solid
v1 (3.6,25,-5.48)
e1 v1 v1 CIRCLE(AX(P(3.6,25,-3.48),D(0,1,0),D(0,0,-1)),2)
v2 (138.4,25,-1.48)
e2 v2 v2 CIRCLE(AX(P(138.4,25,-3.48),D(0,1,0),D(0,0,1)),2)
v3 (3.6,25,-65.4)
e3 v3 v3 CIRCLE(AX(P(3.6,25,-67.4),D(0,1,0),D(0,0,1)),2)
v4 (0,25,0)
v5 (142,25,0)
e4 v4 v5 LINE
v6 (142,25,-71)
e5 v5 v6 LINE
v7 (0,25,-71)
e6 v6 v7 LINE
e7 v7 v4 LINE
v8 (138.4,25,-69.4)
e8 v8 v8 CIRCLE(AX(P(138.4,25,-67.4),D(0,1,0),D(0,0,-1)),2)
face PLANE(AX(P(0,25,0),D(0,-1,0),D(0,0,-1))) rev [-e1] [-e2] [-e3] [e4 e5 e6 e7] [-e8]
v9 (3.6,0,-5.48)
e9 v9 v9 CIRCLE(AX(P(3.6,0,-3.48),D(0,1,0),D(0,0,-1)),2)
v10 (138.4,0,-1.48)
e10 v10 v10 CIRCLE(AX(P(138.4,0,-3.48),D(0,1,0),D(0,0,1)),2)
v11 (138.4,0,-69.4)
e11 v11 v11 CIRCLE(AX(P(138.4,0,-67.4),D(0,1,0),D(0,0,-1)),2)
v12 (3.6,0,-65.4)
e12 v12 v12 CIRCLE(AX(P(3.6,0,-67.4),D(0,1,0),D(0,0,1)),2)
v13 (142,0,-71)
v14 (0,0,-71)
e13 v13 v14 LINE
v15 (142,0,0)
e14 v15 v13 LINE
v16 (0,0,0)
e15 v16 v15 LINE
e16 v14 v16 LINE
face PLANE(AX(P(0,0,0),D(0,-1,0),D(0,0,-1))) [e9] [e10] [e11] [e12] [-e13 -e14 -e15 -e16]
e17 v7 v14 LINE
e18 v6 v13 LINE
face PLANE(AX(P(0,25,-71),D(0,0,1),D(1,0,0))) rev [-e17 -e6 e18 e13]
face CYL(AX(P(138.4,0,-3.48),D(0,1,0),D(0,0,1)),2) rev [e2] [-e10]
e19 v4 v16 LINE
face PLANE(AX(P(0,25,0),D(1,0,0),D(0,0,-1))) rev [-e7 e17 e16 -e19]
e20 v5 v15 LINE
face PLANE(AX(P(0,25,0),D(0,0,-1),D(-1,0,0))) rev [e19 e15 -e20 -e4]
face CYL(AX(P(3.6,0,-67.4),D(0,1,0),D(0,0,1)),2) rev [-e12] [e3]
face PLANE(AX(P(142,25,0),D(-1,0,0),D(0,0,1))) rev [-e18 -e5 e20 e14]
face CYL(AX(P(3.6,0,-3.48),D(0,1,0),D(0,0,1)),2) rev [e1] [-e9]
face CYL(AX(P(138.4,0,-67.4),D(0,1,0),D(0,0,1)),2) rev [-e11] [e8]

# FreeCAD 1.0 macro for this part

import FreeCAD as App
import Part
import Sketcher


def add_polygon(sketch, points):
    """Adds a closed chain of lines whose ends are joined by coincident constraints."""
    first, n = sketch.GeometryCount, len(points)
    for a, b in zip(points, points[1:] + points[:1]):
        sketch.addGeometry(Part.LineSegment(App.Vector(*a, 0), App.Vector(*b, 0)), False)
    for i in range(n):
        sketch.addConstraint(Sketcher.Constraint("Coincident", first + i, 2, first + (i + 1) % n, 1))

doc = App.newDocument("Part")
body = doc.addObject("PartDesign::Body", "Body")

# Sketch on XZ plane
sketch1 = doc.addObject("Sketcher::SketchObject", "Sketch")
body.addObject(sketch1)
sketch1.AttachmentSupport = (doc.XZ_Plane, [""])
sketch1.MapMode = "FlatFace"
add_polygon(sketch1, [(0, -71), (0, 0), (142, 0), (142, -71)])  # lines 0-3
sketch1.addConstraint([
    Sketcher.Constraint("Vertical", 0),
    Sketcher.Constraint("Horizontal", 1),
    Sketcher.Constraint("Vertical", 2),
    Sketcher.Constraint("Horizontal", 3),
    Sketcher.Constraint("Coincident", 0, 2, -1, 1),
    Sketcher.Constraint("DistanceX", 1, 1, 1, 2, 142.0),
    Sketcher.Constraint("DistanceY", 0, 1, 0, 2, 71.0),
])
pad1 = doc.addObject("PartDesign::Pad", "Pad")
body.addObject(pad1)
pad1.Profile = sketch1
pad1.Length = 25
pad1.Reversed = True

# Sketch on XZ plane
sketch2 = doc.addObject("Sketcher::SketchObject", "Sketch001")
body.addObject(sketch2)
sketch2.AttachmentSupport = (doc.XZ_Plane, [""])
sketch2.MapMode = "FlatFace"
sketch2.AttachmentOffset = App.Placement(App.Vector(0, 0, -25), App.Rotation())
sketch2.addGeometry([
    Part.Circle(App.Vector(3.6, -67.4, 0), App.Vector(0, 0, 1), 2),
    Part.Circle(App.Vector(138.4, -67.4, 0), App.Vector(0, 0, 1), 2),
    Part.Circle(App.Vector(138.4, -3.5, 0), App.Vector(0, 0, 1), 2),
    Part.Circle(App.Vector(3.6, -3.5, 0), App.Vector(0, 0, 1), 2),
], False)
sketch2.addConstraint([
    Sketcher.Constraint("Equal", 0, 1),
    Sketcher.Constraint("Equal", 1, 2),
    Sketcher.Constraint("Equal", 2, 3),
    Sketcher.Constraint("Horizontal", 0, 3, 1, 3),
    Sketcher.Constraint("Horizontal", 2, 3, 3, 3),
    Sketcher.Constraint("Vertical", 1, 3, 2, 3),
    Sketcher.Constraint("Vertical", 0, 3, 3, 3),
    Sketcher.Constraint("Diameter", 0, 4.0),
    Sketcher.Constraint("DistanceX", -1, 1, 0, 3, 3.6),
    Sketcher.Constraint("DistanceY", 0, 3, -1, 1, 67.4),
    Sketcher.Constraint("DistanceX", -1, 1, 1, 3, 138.4),
    Sketcher.Constraint("DistanceY", 2, 3, -1, 1, 3.48),
])
pocket1 = doc.addObject("PartDesign::Pocket", "Pocket")
body.addObject(pocket1)
pocket1.Profile = sketch2
pocket1.Type = "ThroughAll"
pocket1.Reversed = True

doc.recompute()
